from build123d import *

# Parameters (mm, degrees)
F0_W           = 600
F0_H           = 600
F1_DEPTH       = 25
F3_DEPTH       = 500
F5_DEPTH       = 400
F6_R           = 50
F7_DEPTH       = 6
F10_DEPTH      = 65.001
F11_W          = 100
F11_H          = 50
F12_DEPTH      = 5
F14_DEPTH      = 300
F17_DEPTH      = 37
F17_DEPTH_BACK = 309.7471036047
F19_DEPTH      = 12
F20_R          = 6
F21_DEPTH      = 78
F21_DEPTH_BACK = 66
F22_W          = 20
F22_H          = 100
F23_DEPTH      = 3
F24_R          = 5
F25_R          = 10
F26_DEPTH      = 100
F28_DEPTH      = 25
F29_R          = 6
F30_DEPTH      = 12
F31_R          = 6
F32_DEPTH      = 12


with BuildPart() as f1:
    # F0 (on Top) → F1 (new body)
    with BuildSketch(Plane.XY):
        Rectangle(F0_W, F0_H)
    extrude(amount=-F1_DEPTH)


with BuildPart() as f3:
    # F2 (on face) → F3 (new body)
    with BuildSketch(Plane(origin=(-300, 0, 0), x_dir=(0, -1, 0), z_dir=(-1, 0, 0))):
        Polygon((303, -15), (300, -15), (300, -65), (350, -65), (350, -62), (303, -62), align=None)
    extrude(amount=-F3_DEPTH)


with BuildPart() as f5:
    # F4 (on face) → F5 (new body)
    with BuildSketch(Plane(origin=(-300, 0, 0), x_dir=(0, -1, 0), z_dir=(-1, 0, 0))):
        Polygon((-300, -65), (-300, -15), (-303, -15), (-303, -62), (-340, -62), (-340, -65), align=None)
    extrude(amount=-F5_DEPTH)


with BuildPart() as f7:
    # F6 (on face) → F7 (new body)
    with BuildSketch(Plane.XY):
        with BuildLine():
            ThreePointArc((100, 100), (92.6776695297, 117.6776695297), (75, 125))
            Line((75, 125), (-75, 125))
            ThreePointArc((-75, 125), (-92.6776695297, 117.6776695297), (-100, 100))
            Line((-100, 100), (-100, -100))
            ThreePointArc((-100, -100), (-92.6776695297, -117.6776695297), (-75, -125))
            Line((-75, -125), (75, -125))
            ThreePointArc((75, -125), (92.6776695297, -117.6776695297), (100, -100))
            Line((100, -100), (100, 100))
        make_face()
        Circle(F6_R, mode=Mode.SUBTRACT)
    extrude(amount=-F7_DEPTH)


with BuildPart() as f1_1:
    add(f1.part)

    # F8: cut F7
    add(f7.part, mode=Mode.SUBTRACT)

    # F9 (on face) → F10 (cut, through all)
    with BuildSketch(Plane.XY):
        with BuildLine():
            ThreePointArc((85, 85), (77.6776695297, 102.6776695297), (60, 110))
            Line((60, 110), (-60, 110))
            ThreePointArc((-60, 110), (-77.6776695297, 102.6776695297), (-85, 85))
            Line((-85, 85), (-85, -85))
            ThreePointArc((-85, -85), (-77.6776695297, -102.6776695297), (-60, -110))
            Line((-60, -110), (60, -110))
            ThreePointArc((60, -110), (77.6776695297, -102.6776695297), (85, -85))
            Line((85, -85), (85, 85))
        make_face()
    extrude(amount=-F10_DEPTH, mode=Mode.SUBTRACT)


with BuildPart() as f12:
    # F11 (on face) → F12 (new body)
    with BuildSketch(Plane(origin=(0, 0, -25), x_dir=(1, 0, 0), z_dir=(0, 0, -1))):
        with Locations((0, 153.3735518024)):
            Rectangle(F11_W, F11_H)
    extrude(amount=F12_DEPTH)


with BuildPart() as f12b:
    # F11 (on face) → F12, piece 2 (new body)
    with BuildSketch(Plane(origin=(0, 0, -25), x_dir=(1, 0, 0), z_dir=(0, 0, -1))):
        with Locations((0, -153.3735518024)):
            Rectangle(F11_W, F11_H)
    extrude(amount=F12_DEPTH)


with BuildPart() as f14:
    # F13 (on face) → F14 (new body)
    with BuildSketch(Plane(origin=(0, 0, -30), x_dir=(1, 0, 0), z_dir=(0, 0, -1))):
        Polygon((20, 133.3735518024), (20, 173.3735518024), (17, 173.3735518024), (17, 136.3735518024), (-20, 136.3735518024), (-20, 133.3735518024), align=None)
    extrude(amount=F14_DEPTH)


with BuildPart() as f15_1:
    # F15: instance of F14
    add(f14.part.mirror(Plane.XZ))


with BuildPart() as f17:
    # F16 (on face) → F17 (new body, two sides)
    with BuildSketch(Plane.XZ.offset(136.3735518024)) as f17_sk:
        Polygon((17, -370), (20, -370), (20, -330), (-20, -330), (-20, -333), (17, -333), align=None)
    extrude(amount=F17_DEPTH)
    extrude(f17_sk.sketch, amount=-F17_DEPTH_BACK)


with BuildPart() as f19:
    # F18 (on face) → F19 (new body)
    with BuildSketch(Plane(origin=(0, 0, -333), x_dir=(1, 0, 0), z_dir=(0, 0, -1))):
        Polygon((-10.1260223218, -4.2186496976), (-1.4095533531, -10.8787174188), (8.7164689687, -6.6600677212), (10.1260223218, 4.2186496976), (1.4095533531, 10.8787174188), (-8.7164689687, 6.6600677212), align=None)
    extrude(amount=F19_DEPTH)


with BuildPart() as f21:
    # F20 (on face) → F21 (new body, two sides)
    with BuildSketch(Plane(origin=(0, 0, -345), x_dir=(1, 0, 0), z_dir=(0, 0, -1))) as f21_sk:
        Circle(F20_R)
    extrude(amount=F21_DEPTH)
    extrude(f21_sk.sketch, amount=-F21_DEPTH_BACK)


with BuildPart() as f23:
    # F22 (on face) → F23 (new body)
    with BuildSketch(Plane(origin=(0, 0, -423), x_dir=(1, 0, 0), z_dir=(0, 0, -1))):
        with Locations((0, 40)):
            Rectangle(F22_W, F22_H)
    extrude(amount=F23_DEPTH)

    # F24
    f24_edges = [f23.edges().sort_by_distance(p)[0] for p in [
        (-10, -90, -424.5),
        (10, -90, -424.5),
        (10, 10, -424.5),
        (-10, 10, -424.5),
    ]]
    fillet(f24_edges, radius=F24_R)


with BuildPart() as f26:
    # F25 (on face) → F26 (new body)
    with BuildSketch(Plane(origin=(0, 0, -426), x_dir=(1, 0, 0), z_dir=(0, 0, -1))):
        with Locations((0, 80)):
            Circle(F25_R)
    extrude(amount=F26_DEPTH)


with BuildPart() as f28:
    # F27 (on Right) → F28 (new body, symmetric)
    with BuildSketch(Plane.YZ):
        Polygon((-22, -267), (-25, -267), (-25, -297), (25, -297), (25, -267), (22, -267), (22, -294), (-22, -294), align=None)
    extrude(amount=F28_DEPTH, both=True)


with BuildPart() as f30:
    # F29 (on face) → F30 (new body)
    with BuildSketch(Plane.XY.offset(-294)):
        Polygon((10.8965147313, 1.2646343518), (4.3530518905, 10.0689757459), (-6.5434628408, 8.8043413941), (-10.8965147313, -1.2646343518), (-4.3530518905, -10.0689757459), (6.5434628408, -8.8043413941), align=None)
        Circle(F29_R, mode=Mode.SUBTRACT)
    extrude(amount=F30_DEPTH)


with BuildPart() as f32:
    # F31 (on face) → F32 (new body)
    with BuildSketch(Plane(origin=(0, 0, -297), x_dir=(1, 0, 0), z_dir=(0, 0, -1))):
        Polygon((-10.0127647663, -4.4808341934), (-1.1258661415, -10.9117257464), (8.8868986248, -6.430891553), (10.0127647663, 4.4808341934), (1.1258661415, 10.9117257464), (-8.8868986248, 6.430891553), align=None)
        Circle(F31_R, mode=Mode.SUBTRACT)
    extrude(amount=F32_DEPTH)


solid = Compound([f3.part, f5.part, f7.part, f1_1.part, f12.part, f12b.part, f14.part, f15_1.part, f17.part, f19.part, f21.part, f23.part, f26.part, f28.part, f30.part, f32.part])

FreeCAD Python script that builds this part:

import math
import FreeCAD as App
import Part
import Sketcher

V = App.Vector


def edges_at(feature, points):
    """Names of the edges that pass closest to the given points."""
    edges = feature.Shape.Edges
    near = lambda p: min(range(len(edges)), key=lambda i: edges[i].distToShape(Part.Vertex(*p))[0])
    return sorted({f"Edge{near(p) + 1}" for p in points})

doc = App.newDocument("Part")
body = doc.addObject("PartDesign::Body", "Body")

# Sketch on XY plane
sketch1 = doc.addObject("Sketcher::SketchObject", "Sketch")
body.addObject(sketch1)
sketch1.AttachmentSupport = (doc.XY_Plane, [""])
sketch1.MapMode = "FlatFace"
sketch1.addGeometry([
    Part.LineSegment(V(-300, 300, 0), V(-300, -300, 0)),
    Part.LineSegment(V(-300, -300, 0), V(300, -300, 0)),
    Part.LineSegment(V(300, -300, 0), V(300, 300, 0)),
    Part.LineSegment(V(300, 300, 0), V(-300, 300, 0)),
], False)
sketch1.addConstraint([
    Sketcher.Constraint("Coincident", 0, 2, 1, 1),
    Sketcher.Constraint("Coincident", 1, 2, 2, 1),
    Sketcher.Constraint("Coincident", 2, 2, 3, 1),
    Sketcher.Constraint("Coincident", 3, 2, 0, 1),
    Sketcher.Constraint("Vertical", 0),
    Sketcher.Constraint("Horizontal", 1),
    Sketcher.Constraint("Vertical", 2),
    Sketcher.Constraint("Horizontal", 3),
    Sketcher.Constraint("Symmetric", 0, 2, 2, 2, -1, 1),
    Sketcher.Constraint("Equal", 3, 0),
    Sketcher.Constraint("DistanceX", 1, 1, 1, 2, 600.0),
])
pad1 = doc.addObject("PartDesign::Pad", "Pad")
body.addObject(pad1)
pad1.Profile = sketch1
pad1.Length = 25
pad1.Reversed = True
body2 = doc.addObject("PartDesign::Body", "Body001")

# Sketch on YZ plane
sketch2 = doc.addObject("Sketcher::SketchObject", "Sketch001")
body2.addObject(sketch2)
sketch2.AttachmentSupport = (doc.getObject("YZ_Plane001"), [""])
sketch2.MapMode = "FlatFace"
sketch2.AttachmentOffset = App.Placement(V(0, 0, -300), App.Rotation())
sketch2.addGeometry([
    Part.LineSegment(V(-303, -15, 0), V(-300, -15, 0)),  # 0
    Part.LineSegment(V(-300, -15, 0), V(-300, -65, 0)),  # 1
    Part.LineSegment(V(-300, -65, 0), V(-350, -65, 0)),  # 2
    Part.LineSegment(V(-350, -65, 0), V(-350, -62, 0)),  # 3
    Part.LineSegment(V(-350, -62, 0), V(-303, -62, 0)),  # 4
    Part.LineSegment(V(-303, -62, 0), V(-303, -15, 0)),  # 5
], False)
sketch2.addConstraint([
    Sketcher.Constraint("Coincident", 0, 2, 1, 1),
    Sketcher.Constraint("Coincident", 1, 2, 2, 1),
    Sketcher.Constraint("Coincident", 2, 2, 3, 1),
    Sketcher.Constraint("Coincident", 3, 2, 4, 1),
    Sketcher.Constraint("Coincident", 4, 2, 5, 1),
    Sketcher.Constraint("Coincident", 5, 2, 0, 1),
    Sketcher.Constraint("Horizontal", 0),
    Sketcher.Constraint("Vertical", 1),
    Sketcher.Constraint("Horizontal", 2),
    Sketcher.Constraint("Vertical", 3),
    Sketcher.Constraint("Horizontal", 4),
    Sketcher.Constraint("Vertical", 5),
    Sketcher.Constraint("Equal", 2, 1),
    Sketcher.Constraint("Equal", 0, 3),
    Sketcher.Constraint("DistanceX", 0, 1, 0, 2, 3.0),
    Sketcher.Constraint("DistanceX", 2, 2, 2, 1, 50.0),
    Sketcher.Constraint("DistanceX", 0, 2, -1, 1, 300.0),
    Sketcher.Constraint("DistanceY", 0, 2, -1, 1, 15.0),
])
pad2 = doc.addObject("PartDesign::Pad", "Pad001")
body2.addObject(pad2)
pad2.Profile = sketch2
pad2.Length = 500
body3 = doc.addObject("PartDesign::Body", "Body002")

# Sketch on YZ plane
sketch3 = doc.addObject("Sketcher::SketchObject", "Sketch002")
body3.addObject(sketch3)
sketch3.AttachmentSupport = (doc.getObject("YZ_Plane002"), [""])
sketch3.MapMode = "FlatFace"
sketch3.AttachmentOffset = App.Placement(V(0, 0, -300), App.Rotation())
sketch3.addGeometry([
    Part.LineSegment(V(300, -65, 0), V(300, -15, 0)),  # 0
    Part.LineSegment(V(300, -15, 0), V(303, -15, 0)),  # 1
    Part.LineSegment(V(303, -15, 0), V(303, -62, 0)),  # 2
    Part.LineSegment(V(303, -62, 0), V(340, -62, 0)),  # 3
    Part.LineSegment(V(340, -62, 0), V(340, -65, 0)),  # 4
    Part.LineSegment(V(340, -65, 0), V(300, -65, 0)),  # 5
], False)
sketch3.addConstraint([
    Sketcher.Constraint("Coincident", 0, 2, 1, 1),
    Sketcher.Constraint("Coincident", 1, 2, 2, 1),
    Sketcher.Constraint("Coincident", 2, 2, 3, 1),
    Sketcher.Constraint("Coincident", 3, 2, 4, 1),
    Sketcher.Constraint("Coincident", 4, 2, 5, 1),
    Sketcher.Constraint("Coincident", 5, 2, 0, 1),
    Sketcher.Constraint("Vertical", 0),
    Sketcher.Constraint("Horizontal", 1),
    Sketcher.Constraint("Vertical", 2),
    Sketcher.Constraint("Horizontal", 3),
    Sketcher.Constraint("Vertical", 4),
    Sketcher.Constraint("Horizontal", 5),
    Sketcher.Constraint("Equal", 1, 4),
    Sketcher.Constraint("DistanceX", 1, 1, 1, 2, 3.0),
    Sketcher.Constraint("DistanceX", 3, 1, 3, 2, 37.0),
    Sketcher.Constraint("DistanceY", 0, 1, 0, 2, 50.0),
    Sketcher.Constraint("DistanceX", -1, 1, 0, 2, 300.0),
    Sketcher.Constraint("DistanceY", 0, 2, -1, 1, 15.0),
])
pad3 = doc.addObject("PartDesign::Pad", "Pad002")
body3.addObject(pad3)
pad3.Profile = sketch3
pad3.Length = 400
body4 = doc.addObject("PartDesign::Body", "Body003")

# Sketch on XY plane
sketch4 = doc.addObject("Sketcher::SketchObject", "Sketch003")
body4.addObject(sketch4)
sketch4.AttachmentSupport = (doc.getObject("XY_Plane003"), [""])
sketch4.MapMode = "FlatFace"
sketch4.addGeometry([
    Part.ArcOfCircle(Part.Circle(V(75, 100, 0), V(0, 0, 1), 25), math.radians(0), math.radians(90)),  # 0
    Part.LineSegment(V(75, 125, 0), V(-75, 125, 0)),  # 1
    Part.ArcOfCircle(Part.Circle(V(-75, 100, 0), V(0, 0, 1), 25), math.radians(90), math.radians(180)),  # 2
    Part.LineSegment(V(-100, 100, 0), V(-100, -100, 0)),  # 3
    Part.ArcOfCircle(Part.Circle(V(-75, -100, 0), V(0, 0, 1), 25), math.radians(180), math.radians(270)),  # 4
    Part.LineSegment(V(-75, -125, 0), V(75, -125, 0)),  # 5
    Part.ArcOfCircle(Part.Circle(V(75, -100, 0), V(0, 0, 1), 25), math.radians(-90), math.radians(0)),  # 6
    Part.LineSegment(V(100, -100, 0), V(100, 100, 0)),  # 7
    Part.Circle(V(0, 0, 0), V(0, 0, 1), 50),  # 8
], False)
sketch4.addConstraint([
    Sketcher.Constraint("Tangent", 0, 2, 1, 1),
    Sketcher.Constraint("Tangent", 1, 2, 2, 1),
    Sketcher.Constraint("Tangent", 2, 2, 3, 1),
    Sketcher.Constraint("Tangent", 3, 2, 4, 1),
    Sketcher.Constraint("Tangent", 4, 2, 5, 1),
    Sketcher.Constraint("Tangent", 5, 2, 6, 1),
    Sketcher.Constraint("Tangent", 6, 2, 7, 1),
    Sketcher.Constraint("Tangent", 7, 2, 0, 1),
    Sketcher.Constraint("Horizontal", 1),
    Sketcher.Constraint("Vertical", 3),
    Sketcher.Constraint("Horizontal", 5),
    Sketcher.Constraint("Vertical", 7),
    Sketcher.Constraint("Coincident", 8, 3, -1, 1),
    Sketcher.Constraint("Equal", 0, 2),
    Sketcher.Constraint("Equal", 2, 4),
    Sketcher.Constraint("Equal", 4, 6),
    Sketcher.Constraint("Symmetric", 0, 3, 4, 3, -1, 1),
    Sketcher.Constraint("Diameter", 8, 100.0),
    Sketcher.Constraint("Radius", 0, 25.0),
    Sketcher.Constraint("DistanceX", 1, 2, 1, 1, 150.0),
    Sketcher.Constraint("DistanceY", 3, 2, 3, 1, 200.0),
])
pad4 = doc.addObject("PartDesign::Pad", "Pad003")
body4.addObject(pad4)
pad4.Profile = sketch4
pad4.Length = 6
pad4.Reversed = True
doc.recompute()

body5 = doc.addObject("PartDesign::Body", "Body004")
body5.BaseFeature = body4
boolean = doc.addObject("PartDesign::Boolean", "Boolean")
body.addObject(boolean)
boolean.Type = "Cut"
boolean.addObjects([body5])
doc.recompute()

# Sketch on XY plane
sketch5 = doc.addObject("Sketcher::SketchObject", "Sketch004")
body.addObject(sketch5)
sketch5.AttachmentSupport = (doc.XY_Plane, [""])
sketch5.MapMode = "FlatFace"
sketch5.addGeometry([
    Part.ArcOfCircle(Part.Circle(V(60, 85, 0), V(0, 0, 1), 25), math.radians(0), math.radians(90)),  # 0
    Part.LineSegment(V(60, 110, 0), V(-60, 110, 0)),  # 1
    Part.ArcOfCircle(Part.Circle(V(-60, 85, 0), V(0, 0, 1), 25), math.radians(90), math.radians(180)),  # 2
    Part.LineSegment(V(-85, 85, 0), V(-85, -85, 0)),  # 3
    Part.ArcOfCircle(Part.Circle(V(-60, -85, 0), V(0, 0, 1), 25), math.radians(180), math.radians(270)),  # 4
    Part.LineSegment(V(-60, -110, 0), V(60, -110, 0)),  # 5
    Part.ArcOfCircle(Part.Circle(V(60, -85, 0), V(0, 0, 1), 25), math.radians(-90), math.radians(0)),  # 6
    Part.LineSegment(V(85, -85, 0), V(85, 85, 0)),  # 7
], False)
sketch5.addConstraint([
    Sketcher.Constraint("Tangent", 0, 2, 1, 1),
    Sketcher.Constraint("Tangent", 1, 2, 2, 1),
    Sketcher.Constraint("Tangent", 2, 2, 3, 1),
    Sketcher.Constraint("Tangent", 3, 2, 4, 1),
    Sketcher.Constraint("Tangent", 4, 2, 5, 1),
    Sketcher.Constraint("Tangent", 5, 2, 6, 1),
    Sketcher.Constraint("Tangent", 6, 2, 7, 1),
    Sketcher.Constraint("Tangent", 7, 2, 0, 1),
    Sketcher.Constraint("Horizontal", 1),
    Sketcher.Constraint("Vertical", 3),
    Sketcher.Constraint("Horizontal", 5),
    Sketcher.Constraint("Vertical", 7),
    Sketcher.Constraint("Equal", 0, 2),
    Sketcher.Constraint("Equal", 2, 4),
    Sketcher.Constraint("Equal", 4, 6),
    Sketcher.Constraint("Symmetric", 0, 3, 4, 3, -1, 1),
    Sketcher.Constraint("Radius", 0, 25.0),
    Sketcher.Constraint("DistanceX", 1, 2, 1, 1, 120.0),
    Sketcher.Constraint("DistanceY", 3, 2, 3, 1, 170.0),
])
pocket1 = doc.addObject("PartDesign::Pocket", "Pocket")
body.addObject(pocket1)
pocket1.Profile = sketch5
pocket1.Type = "ThroughAll"
body6 = doc.addObject("PartDesign::Body", "Body005")

# Sketch on XY plane
sketch6 = doc.addObject("Sketcher::SketchObject", "Sketch005")
body6.addObject(sketch6)
sketch6.AttachmentSupport = (doc.getObject("XY_Plane005"), [""])
sketch6.MapMode = "FlatFace"
sketch6.AttachmentOffset = App.Placement(V(0, 0, -25), App.Rotation())
sketch6.addGeometry([
    Part.LineSegment(V(-50, -178, 0), V(-50, -128, 0)),
    Part.LineSegment(V(-50, -128, 0), V(50, -128, 0)),
    Part.LineSegment(V(50, -128, 0), V(50, -178, 0)),
    Part.LineSegment(V(50, -178, 0), V(-50, -178, 0)),
], False)
sketch6.addConstraint([
    Sketcher.Constraint("Coincident", 0, 2, 1, 1),
    Sketcher.Constraint("Coincident", 1, 2, 2, 1),
    Sketcher.Constraint("Coincident", 2, 2, 3, 1),
    Sketcher.Constraint("Coincident", 3, 2, 0, 1),
    Sketcher.Constraint("Vertical", 0),
    Sketcher.Constraint("Horizontal", 1),
    Sketcher.Constraint("Vertical", 2),
    Sketcher.Constraint("Horizontal", 3),
    Sketcher.Constraint("DistanceX", 1, 1, 1, 2, 100.0),
    Sketcher.Constraint("DistanceY", 0, 1, 0, 2, 50.0),
    Sketcher.Constraint("DistanceX", 0, 2, -1, 1, 50.0),
    Sketcher.Constraint("DistanceY", 0, 2, -1, 1, 128.373552),
])
pad5 = doc.addObject("PartDesign::Pad", "Pad004")
body6.addObject(pad5)
pad5.Profile = sketch6
pad5.Length = 5
pad5.Reversed = True
body7 = doc.addObject("PartDesign::Body", "Body006")

# Sketch on XY plane
sketch7 = doc.addObject("Sketcher::SketchObject", "Sketch006")
body7.addObject(sketch7)
sketch7.AttachmentSupport = (doc.getObject("XY_Plane006"), [""])
sketch7.MapMode = "FlatFace"
sketch7.AttachmentOffset = App.Placement(V(0, 0, -25), App.Rotation())
sketch7.addGeometry([
    Part.LineSegment(V(-50, 128, 0), V(-50, 178, 0)),
    Part.LineSegment(V(-50, 178, 0), V(50, 178, 0)),
    Part.LineSegment(V(50, 178, 0), V(50, 128, 0)),
    Part.LineSegment(V(50, 128, 0), V(-50, 128, 0)),
], False)
sketch7.addConstraint([
    Sketcher.Constraint("Coincident", 0, 2, 1, 1),
    Sketcher.Constraint("Coincident", 1, 2, 2, 1),
    Sketcher.Constraint("Coincident", 2, 2, 3, 1),
    Sketcher.Constraint("Coincident", 3, 2, 0, 1),
    Sketcher.Constraint("Vertical", 0),
    Sketcher.Constraint("Horizontal", 1),
    Sketcher.Constraint("Vertical", 2),
    Sketcher.Constraint("Horizontal", 3),
    Sketcher.Constraint("DistanceX", 1, 1, 1, 2, 100.0),
    Sketcher.Constraint("DistanceY", 0, 1, 0, 2, 50.0),
    Sketcher.Constraint("DistanceX", 0, 2, -1, 1, 50.0),
    Sketcher.Constraint("DistanceY", -1, 1, 0, 2, 178.373552),
])
pad6 = doc.addObject("PartDesign::Pad", "Pad005")
body7.addObject(pad6)
pad6.Profile = sketch7
pad6.Length = 5
pad6.Reversed = True
body8 = doc.addObject("PartDesign::Body", "Body007")

# Sketch on XY plane
sketch8 = doc.addObject("Sketcher::SketchObject", "Sketch007")
body8.addObject(sketch8)
sketch8.AttachmentSupport = (doc.getObject("XY_Plane007"), [""])
sketch8.MapMode = "FlatFace"
sketch8.AttachmentOffset = App.Placement(V(0, 0, -30), App.Rotation())
sketch8.addGeometry([
    Part.LineSegment(V(20, -133.4, 0), V(20, -173.4, 0)),  # 0
    Part.LineSegment(V(20, -173.4, 0), V(17, -173.4, 0)),  # 1
    Part.LineSegment(V(17, -173.4, 0), V(17, -136.4, 0)),  # 2
    Part.LineSegment(V(17, -136.4, 0), V(-20, -136.4, 0)),  # 3
    Part.LineSegment(V(-20, -136.4, 0), V(-20, -133.4, 0)),  # 4
    Part.LineSegment(V(-20, -133.4, 0), V(20, -133.4, 0)),  # 5
], False)
sketch8.addConstraint([
    Sketcher.Constraint("Coincident", 0, 2, 1, 1),
    Sketcher.Constraint("Coincident", 1, 2, 2, 1),
    Sketcher.Constraint("Coincident", 2, 2, 3, 1),
    Sketcher.Constraint("Coincident", 3, 2, 4, 1),
    Sketcher.Constraint("Coincident", 4, 2, 5, 1),
    Sketcher.Constraint("Coincident", 5, 2, 0, 1),
    Sketcher.Constraint("Vertical", 0),
    Sketcher.Constraint("Horizontal", 1),
    Sketcher.Constraint("Vertical", 2),
    Sketcher.Constraint("Horizontal", 3),
    Sketcher.Constraint("Vertical", 4),
    Sketcher.Constraint("Horizontal", 5),
    Sketcher.Constraint("Equal", 5, 0),
    Sketcher.Constraint("Equal", 3, 2),
    Sketcher.Constraint("DistanceX", 1, 2, 1, 1, 3.0),
    Sketcher.Constraint("DistanceX", 3, 2, 3, 1, 37.0),
    Sketcher.Constraint("DistanceX", -1, 1, 0, 2, 20.0),
    Sketcher.Constraint("DistanceY", 0, 2, -1, 1, 173.373552),
])
pad7 = doc.addObject("PartDesign::Pad", "Pad006")
body8.addObject(pad7)
pad7.Profile = sketch8
pad7.Length = 300
pad7.Reversed = True
body9 = doc.addObject("PartDesign::Body", "Body008")
doc.recompute()

mirroring = doc.addObject("Part::Mirroring", "Mirroring")
mirroring.Source = body8
mirroring.Base = V(0, 0, 0)
mirroring.Normal = V(0, -1, 0)
body9.BaseFeature = mirroring
doc.recompute()
body10 = doc.addObject("PartDesign::Body", "Body009")

# Sketch on XZ plane
sketch9 = doc.addObject("Sketcher::SketchObject", "Sketch008")
body10.addObject(sketch9)
sketch9.AttachmentSupport = (doc.getObject("XZ_Plane009"), [""])
sketch9.MapMode = "FlatFace"
sketch9.AttachmentOffset = App.Placement(V(0, 0, 136.373552), App.Rotation())
sketch9.addGeometry([
    Part.LineSegment(V(17, -370, 0), V(20, -370, 0)),  # 0
    Part.LineSegment(V(20, -370, 0), V(20, -330, 0)),  # 1
    Part.LineSegment(V(20, -330, 0), V(-20, -330, 0)),  # 2
    Part.LineSegment(V(-20, -330, 0), V(-20, -333, 0)),  # 3
    Part.LineSegment(V(-20, -333, 0), V(17, -333, 0)),  # 4
    Part.LineSegment(V(17, -333, 0), V(17, -370, 0)),  # 5
], False)
sketch9.addConstraint([
    Sketcher.Constraint("Coincident", 0, 2, 1, 1),
    Sketcher.Constraint("Coincident", 1, 2, 2, 1),
    Sketcher.Constraint("Coincident", 2, 2, 3, 1),
    Sketcher.Constraint("Coincident", 3, 2, 4, 1),
    Sketcher.Constraint("Coincident", 4, 2, 5, 1),
    Sketcher.Constraint("Coincident", 5, 2, 0, 1),
    Sketcher.Constraint("Horizontal", 0),
    Sketcher.Constraint("Vertical", 1),
    Sketcher.Constraint("Horizontal", 2),
    Sketcher.Constraint("Vertical", 3),
    Sketcher.Constraint("Horizontal", 4),
    Sketcher.Constraint("Vertical", 5),
    Sketcher.Constraint("Equal", 2, 1),
    Sketcher.Constraint("Equal", 0, 3),
    Sketcher.Constraint("DistanceX", 0, 1, 0, 2, 3.0),
    Sketcher.Constraint("DistanceX", 2, 2, 2, 1, 40.0),
    Sketcher.Constraint("DistanceX", -1, 1, 0, 2, 20.0),
    Sketcher.Constraint("DistanceY", 0, 2, -1, 1, 370.0),
])
pad8 = doc.addObject("PartDesign::Pad", "Pad007")
body10.addObject(pad8)
pad8.Profile = sketch9
pad8.Type = "TwoLengths"
pad8.Length = 37
pad8.Length2 = 309.747104
body11 = doc.addObject("PartDesign::Body", "Body010")

# Sketch on XY plane
sketch10 = doc.addObject("Sketcher::SketchObject", "Sketch009")
body11.addObject(sketch10)
sketch10.AttachmentSupport = (doc.getObject("XY_Plane010"), [""])
sketch10.MapMode = "FlatFace"
sketch10.AttachmentOffset = App.Placement(V(0, 0, -333), App.Rotation())
sketch10.addGeometry([
    Part.LineSegment(V(-10, 4, 0), V(-1, 11, 0)),  # 0
    Part.LineSegment(V(-1, 11, 0), V(9, 7, 0)),  # 1
    Part.LineSegment(V(9, 7, 0), V(10, -4, 0)),  # 2
    Part.LineSegment(V(10, -4, 0), V(1, -11, 0)),  # 3
    Part.LineSegment(V(1, -11, 0), V(-9, -7, 0)),  # 4
    Part.LineSegment(V(-9, -7, 0), V(-10, 4, 0)),  # 5
], False)
sketch10.addConstraint([
    Sketcher.Constraint("Coincident", 0, 2, 1, 1),
    Sketcher.Constraint("Coincident", 1, 2, 2, 1),
    Sketcher.Constraint("Coincident", 2, 2, 3, 1),
    Sketcher.Constraint("Coincident", 3, 2, 4, 1),
    Sketcher.Constraint("Coincident", 4, 2, 5, 1),
    Sketcher.Constraint("Coincident", 5, 2, 0, 1),
    Sketcher.Constraint("Symmetric", 0, 2, 3, 2, -1, 1),
    Sketcher.Constraint("Symmetric", 1, 2, 4, 2, -1, 1),
    Sketcher.Constraint("Symmetric", 2, 2, 5, 2, -1, 1),
    Sketcher.Constraint("Equal", 0, 1),
    Sketcher.Constraint("Equal", 1, 2),
    Sketcher.Constraint("DistanceY", 2, 2, 5, 2, 8.437299),
    Sketcher.Constraint("DistanceX", -1, 1, 1, 2, 8.716469),
    Sketcher.Constraint("DistanceY", 1, 2, 0, 2, 4.21865),
    Sketcher.Constraint("DistanceX", 3, 2, 2, 2, 8.716469),
])
pad9 = doc.addObject("PartDesign::Pad", "Pad008")
body11.addObject(pad9)
pad9.Profile = sketch10
pad9.Length = 12
pad9.Reversed = True
body12 = doc.addObject("PartDesign::Body", "Body011")

# Sketch on XY plane
sketch11 = doc.addObject("Sketcher::SketchObject", "Sketch010")
body12.addObject(sketch11)
sketch11.AttachmentSupport = (doc.getObject("XY_Plane011"), [""])
sketch11.MapMode = "FlatFace"
sketch11.AttachmentOffset = App.Placement(V(0, 0, -345), App.Rotation())
sketch11.addGeometry(Part.Circle(V(0, 0, 0), V(0, 0, 1), 6), False)
sketch11.addConstraint([
    Sketcher.Constraint("Coincident", 0, 3, -1, 1),
    Sketcher.Constraint("Diameter", 0, 12.0),
])
pad10 = doc.addObject("PartDesign::Pad", "Pad009")
body12.addObject(pad10)
pad10.Profile = sketch11
pad10.Type = "TwoLengths"
pad10.Length = 78
pad10.Length2 = 66
pad10.Reversed = True
body13 = doc.addObject("PartDesign::Body", "Body012")

# Sketch on XY plane
sketch12 = doc.addObject("Sketcher::SketchObject", "Sketch011")
body13.addObject(sketch12)
sketch12.AttachmentSupport = (doc.getObject("XY_Plane012"), [""])
sketch12.MapMode = "FlatFace"
sketch12.AttachmentOffset = App.Placement(V(0, 0, -423), App.Rotation())
sketch12.addGeometry([
    Part.LineSegment(V(-10, -90, 0), V(-10, 10, 0)),
    Part.LineSegment(V(-10, 10, 0), V(10, 10, 0)),
    Part.LineSegment(V(10, 10, 0), V(10, -90, 0)),
    Part.LineSegment(V(10, -90, 0), V(-10, -90, 0)),
], False)
sketch12.addConstraint([
    Sketcher.Constraint("Coincident", 0, 2, 1, 1),
    Sketcher.Constraint("Coincident", 1, 2, 2, 1),
    Sketcher.Constraint("Coincident", 2, 2, 3, 1),
    Sketcher.Constraint("Coincident", 3, 2, 0, 1),
    Sketcher.Constraint("Vertical", 0),
    Sketcher.Constraint("Horizontal", 1),
    Sketcher.Constraint("Vertical", 2),
    Sketcher.Constraint("Horizontal", 3),
    Sketcher.Constraint("DistanceX", 1, 1, 1, 2, 20.0),
    Sketcher.Constraint("DistanceY", 0, 1, 0, 2, 100.0),
    Sketcher.Constraint("DistanceX", 0, 2, -1, 1, 10.0),
    Sketcher.Constraint("DistanceY", -1, 1, 0, 2, 10.0),
])
pad11 = doc.addObject("PartDesign::Pad", "Pad010")
body13.addObject(pad11)
pad11.Profile = sketch12
pad11.Length = 3
pad11.Reversed = True
doc.recompute()

fillet = doc.addObject("PartDesign::Fillet", "Fillet")
body13.addObject(fillet)
fillet.Base = (pad11, edges_at(pad11, [
    (-10, -90, -424.5),
    (10, -90, -424.5),
    (10, 10, -424.5),
    (-10, 10, -424.5),
]))
fillet.Radius = 5
body14 = doc.addObject("PartDesign::Body", "Body013")

# Sketch on XY plane
sketch13 = doc.addObject("Sketcher::SketchObject", "Sketch012")
body14.addObject(sketch13)
sketch13.AttachmentSupport = (doc.getObject("XY_Plane013"), [""])
sketch13.MapMode = "FlatFace"
sketch13.AttachmentOffset = App.Placement(V(0, 0, -426), App.Rotation())
sketch13.addGeometry(Part.Circle(V(0, -80, 0), V(0, 0, 1), 10), False)
sketch13.addConstraint([
    Sketcher.Constraint("PointOnObject", 0, 3, -2),
    Sketcher.Constraint("Diameter", 0, 20.0),
    Sketcher.Constraint("DistanceY", 0, 3, -1, 1, 80.0),
])
pad12 = doc.addObject("PartDesign::Pad", "Pad011")
body14.addObject(pad12)
pad12.Profile = sketch13
pad12.Length = 100
pad12.Reversed = True
body15 = doc.addObject("PartDesign::Body", "Body014")

# Sketch on YZ plane
sketch14 = doc.addObject("Sketcher::SketchObject", "Sketch013")
body15.addObject(sketch14)
sketch14.AttachmentSupport = (doc.getObject("YZ_Plane014"), [""])
sketch14.MapMode = "FlatFace"
sketch14.addGeometry([
    Part.LineSegment(V(-22, -267, 0), V(-25, -267, 0)),  # 0
    Part.LineSegment(V(-25, -267, 0), V(-25, -297, 0)),  # 1
    Part.LineSegment(V(-25, -297, 0), V(25, -297, 0)),  # 2
    Part.LineSegment(V(25, -297, 0), V(25, -267, 0)),  # 3
    Part.LineSegment(V(25, -267, 0), V(22, -267, 0)),  # 4
    Part.LineSegment(V(22, -267, 0), V(22, -294, 0)),  # 5
    Part.LineSegment(V(22, -294, 0), V(-22, -294, 0)),  # 6
    Part.LineSegment(V(-22, -294, 0), V(-22, -267, 0)),  # 7
], False)
sketch14.addConstraint([
    Sketcher.Constraint("Coincident", 0, 2, 1, 1),
    Sketcher.Constraint("Coincident", 1, 2, 2, 1),
    Sketcher.Constraint("Coincident", 2, 2, 3, 1),
    Sketcher.Constraint("Coincident", 3, 2, 4, 1),
    Sketcher.Constraint("Coincident", 4, 2, 5, 1),
    Sketcher.Constraint("Coincident", 5, 2, 6, 1),
    Sketcher.Constraint("Coincident", 6, 2, 7, 1),
    Sketcher.Constraint("Coincident", 7, 2, 0, 1),
    Sketcher.Constraint("Horizontal", 0),
    Sketcher.Constraint("Vertical", 1),
    Sketcher.Constraint("Horizontal", 2),
    Sketcher.Constraint("Vertical", 3),
    Sketcher.Constraint("Horizontal", 4),
    Sketcher.Constraint("Vertical", 5),
    Sketcher.Constraint("Horizontal", 6),
    Sketcher.Constraint("Vertical", 7),
    Sketcher.Constraint("Symmetric", 0, 2, 3, 2, -2),
    Sketcher.Constraint("Equal", 0, 4),
    Sketcher.Constraint("DistanceX", 0, 2, 0, 1, 3.0),
    Sketcher.Constraint("DistanceX", 2, 1, 2, 2, 50.0),
    Sketcher.Constraint("DistanceY", 1, 2, 1, 1, 30.0),
    Sketcher.Constraint("DistanceY", 5, 2, 5, 1, 27.0),
    Sketcher.Constraint("DistanceY", 0, 2, -1, 1, 267.0),
])
pad13 = doc.addObject("PartDesign::Pad", "Pad012")
body15.addObject(pad13)
pad13.Profile = sketch14
pad13.Length = 50
pad13.Midplane = True
body16 = doc.addObject("PartDesign::Body", "Body015")

# Sketch on XY plane
sketch15 = doc.addObject("Sketcher::SketchObject", "Sketch014")
body16.addObject(sketch15)
sketch15.AttachmentSupport = (doc.getObject("XY_Plane015"), [""])
sketch15.MapMode = "FlatFace"
sketch15.AttachmentOffset = App.Placement(V(0, 0, -294), App.Rotation())
sketch15.addGeometry([
    Part.LineSegment(V(11, 1, 0), V(4, 10, 0)),  # 0
    Part.LineSegment(V(4, 10, 0), V(-7, 9, 0)),  # 1
    Part.LineSegment(V(-7, 9, 0), V(-11, -1, 0)),  # 2
    Part.LineSegment(V(-11, -1, 0), V(-4, -10, 0)),  # 3
    Part.LineSegment(V(-4, -10, 0), V(7, -9, 0)),  # 4
    Part.LineSegment(V(7, -9, 0), V(11, 1, 0)),  # 5
    Part.Circle(V(0, 0, 0), V(0, 0, 1), 6),  # 6
], False)
sketch15.addConstraint([
    Sketcher.Constraint("Coincident", 0, 2, 1, 1),
    Sketcher.Constraint("Coincident", 1, 2, 2, 1),
    Sketcher.Constraint("Coincident", 2, 2, 3, 1),
    Sketcher.Constraint("Coincident", 3, 2, 4, 1),
    Sketcher.Constraint("Coincident", 4, 2, 5, 1),
    Sketcher.Constraint("Coincident", 5, 2, 0, 1),
    Sketcher.Constraint("Coincident", 6, 3, -1, 1),
    Sketcher.Constraint("Symmetric", 0, 2, 3, 2, -1, 1),
    Sketcher.Constraint("Symmetric", 1, 2, 4, 2, -1, 1),
    Sketcher.Constraint("Symmetric", 2, 2, 5, 2, -1, 1),
    Sketcher.Constraint("Equal", 0, 1),
    Sketcher.Constraint("Equal", 1, 2),
    Sketcher.Constraint("Diameter", 6, 12.0),
    Sketcher.Constraint("DistanceX", -1, 1, 0, 2, 4.353052),
    Sketcher.Constraint("DistanceY", -1, 1, 1, 2, 8.804341),
    Sketcher.Constraint("DistanceX", 2, 2, 1, 2, 4.353052),
    Sketcher.Constraint("DistanceY", 2, 2, 0, 2, 11.33361),
])
pad14 = doc.addObject("PartDesign::Pad", "Pad013")
body16.addObject(pad14)
pad14.Profile = sketch15
pad14.Length = 12
body17 = doc.addObject("PartDesign::Body", "Body016")

# Sketch on XY plane
sketch16 = doc.addObject("Sketcher::SketchObject", "Sketch015")
body17.addObject(sketch16)
sketch16.AttachmentSupport = (doc.getObject("XY_Plane016"), [""])
sketch16.MapMode = "FlatFace"
sketch16.AttachmentOffset = App.Placement(V(0, 0, -297), App.Rotation())
sketch16.addGeometry([
    Part.LineSegment(V(-10, 4, 0), V(-1, 11, 0)),  # 0
    Part.LineSegment(V(-1, 11, 0), V(9, 6, 0)),  # 1
    Part.LineSegment(V(9, 6, 0), V(10, -4, 0)),  # 2
    Part.LineSegment(V(10, -4, 0), V(1, -11, 0)),  # 3
    Part.LineSegment(V(1, -11, 0), V(-9, -6, 0)),  # 4
    Part.LineSegment(V(-9, -6, 0), V(-10, 4, 0)),  # 5
    Part.Circle(V(0, 0, 0), V(0, 0, 1), 6),  # 6
], False)
sketch16.addConstraint([
    Sketcher.Constraint("Coincident", 0, 2, 1, 1),
    Sketcher.Constraint("Coincident", 1, 2, 2, 1),
    Sketcher.Constraint("Coincident", 2, 2, 3, 1),
    Sketcher.Constraint("Coincident", 3, 2, 4, 1),
    Sketcher.Constraint("Coincident", 4, 2, 5, 1),
    Sketcher.Constraint("Coincident", 5, 2, 0, 1),
    Sketcher.Constraint("Coincident", 6, 3, -1, 1),
    Sketcher.Constraint("Symmetric", 0, 2, 3, 2, -1, 1),
    Sketcher.Constraint("Symmetric", 1, 2, 4, 2, -1, 1),
    Sketcher.Constraint("Symmetric", 2, 2, 5, 2, -1, 1),
    Sketcher.Constraint("Equal", 0, 1),
    Sketcher.Constraint("Equal", 1, 2),
    Sketcher.Constraint("Diameter", 6, 12.0),
    Sketcher.Constraint("DistanceX", -1, 1, 1, 2, 8.886899),
    Sketcher.Constraint("DistanceX", 3, 2, 2, 2, 8.886899),
    Sketcher.Constraint("DistanceY", -1, 1, 1, 2, 6.430892),
    Sketcher.Constraint("DistanceX", 0, 2, 2, 2, 11.138631),
])
pad15 = doc.addObject("PartDesign::Pad", "Pad014")
body17.addObject(pad15)
pad15.Profile = sketch16
pad15.Length = 12
pad15.Reversed = True

doc.recompute()
